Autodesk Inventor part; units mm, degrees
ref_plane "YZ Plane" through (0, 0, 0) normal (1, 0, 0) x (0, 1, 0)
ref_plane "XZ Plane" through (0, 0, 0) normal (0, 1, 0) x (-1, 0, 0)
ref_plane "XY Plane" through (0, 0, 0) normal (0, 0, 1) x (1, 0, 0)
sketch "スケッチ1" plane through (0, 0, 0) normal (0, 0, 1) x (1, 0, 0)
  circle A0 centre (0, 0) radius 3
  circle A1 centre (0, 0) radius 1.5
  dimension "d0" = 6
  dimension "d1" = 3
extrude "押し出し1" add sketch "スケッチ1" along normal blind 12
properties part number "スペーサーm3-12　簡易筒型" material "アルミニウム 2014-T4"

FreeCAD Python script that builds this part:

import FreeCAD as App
import Part
import Sketcher

doc = App.newDocument("Part")
params = doc.addObject("Spreadsheet::Sheet", "Params")
for row, (alias, value) in enumerate([
    ("sketch1_diameter", "6 mm"),
    ("sketch1_diameter2", "3 mm"),
    ("pad1_length", "12 mm"),
], start=1):
    params.set(f"A{row}", alias)
    params.set(f"B{row}", "=" + value)
    params.setAlias(f"B{row}", alias)

body = doc.addObject("PartDesign::Body", "Body")

sketch1 = doc.addObject("Sketcher::SketchObject", "Sketch")
body.addObject(sketch1)
sketch1.AttachmentSupport = (doc.XY_Plane, [""])
sketch1.MapMode = "FlatFace"
sketch1.addGeometry(Part.Circle(App.Vector(0, 0, 0), App.Vector(0, 0, 1), 3), False)
sketch1.addGeometry(Part.Circle(App.Vector(0, 0, 0), App.Vector(0, 0, 1), 1.5), False)
sketch1.addConstraint(Sketcher.Constraint("Coincident", 0, 3, -1, 1))
sketch1.addConstraint(Sketcher.Constraint("Coincident", 1, 3, -1, 1))
sketch1.addConstraint(Sketcher.Constraint("Diameter", 0, 6.0))
sketch1.addConstraint(Sketcher.Constraint("Diameter", 1, 3.0))
sketch1.setExpression("Constraints[2]", "Params.sketch1_diameter")
sketch1.setExpression("Constraints[3]", "Params.sketch1_diameter2")
pad1 = doc.addObject("PartDesign::Pad", "Pad")
body.addObject(pad1)
pad1.Profile = sketch1
pad1.setExpression("Length", "Params.pad1_length")

doc.recompute()
